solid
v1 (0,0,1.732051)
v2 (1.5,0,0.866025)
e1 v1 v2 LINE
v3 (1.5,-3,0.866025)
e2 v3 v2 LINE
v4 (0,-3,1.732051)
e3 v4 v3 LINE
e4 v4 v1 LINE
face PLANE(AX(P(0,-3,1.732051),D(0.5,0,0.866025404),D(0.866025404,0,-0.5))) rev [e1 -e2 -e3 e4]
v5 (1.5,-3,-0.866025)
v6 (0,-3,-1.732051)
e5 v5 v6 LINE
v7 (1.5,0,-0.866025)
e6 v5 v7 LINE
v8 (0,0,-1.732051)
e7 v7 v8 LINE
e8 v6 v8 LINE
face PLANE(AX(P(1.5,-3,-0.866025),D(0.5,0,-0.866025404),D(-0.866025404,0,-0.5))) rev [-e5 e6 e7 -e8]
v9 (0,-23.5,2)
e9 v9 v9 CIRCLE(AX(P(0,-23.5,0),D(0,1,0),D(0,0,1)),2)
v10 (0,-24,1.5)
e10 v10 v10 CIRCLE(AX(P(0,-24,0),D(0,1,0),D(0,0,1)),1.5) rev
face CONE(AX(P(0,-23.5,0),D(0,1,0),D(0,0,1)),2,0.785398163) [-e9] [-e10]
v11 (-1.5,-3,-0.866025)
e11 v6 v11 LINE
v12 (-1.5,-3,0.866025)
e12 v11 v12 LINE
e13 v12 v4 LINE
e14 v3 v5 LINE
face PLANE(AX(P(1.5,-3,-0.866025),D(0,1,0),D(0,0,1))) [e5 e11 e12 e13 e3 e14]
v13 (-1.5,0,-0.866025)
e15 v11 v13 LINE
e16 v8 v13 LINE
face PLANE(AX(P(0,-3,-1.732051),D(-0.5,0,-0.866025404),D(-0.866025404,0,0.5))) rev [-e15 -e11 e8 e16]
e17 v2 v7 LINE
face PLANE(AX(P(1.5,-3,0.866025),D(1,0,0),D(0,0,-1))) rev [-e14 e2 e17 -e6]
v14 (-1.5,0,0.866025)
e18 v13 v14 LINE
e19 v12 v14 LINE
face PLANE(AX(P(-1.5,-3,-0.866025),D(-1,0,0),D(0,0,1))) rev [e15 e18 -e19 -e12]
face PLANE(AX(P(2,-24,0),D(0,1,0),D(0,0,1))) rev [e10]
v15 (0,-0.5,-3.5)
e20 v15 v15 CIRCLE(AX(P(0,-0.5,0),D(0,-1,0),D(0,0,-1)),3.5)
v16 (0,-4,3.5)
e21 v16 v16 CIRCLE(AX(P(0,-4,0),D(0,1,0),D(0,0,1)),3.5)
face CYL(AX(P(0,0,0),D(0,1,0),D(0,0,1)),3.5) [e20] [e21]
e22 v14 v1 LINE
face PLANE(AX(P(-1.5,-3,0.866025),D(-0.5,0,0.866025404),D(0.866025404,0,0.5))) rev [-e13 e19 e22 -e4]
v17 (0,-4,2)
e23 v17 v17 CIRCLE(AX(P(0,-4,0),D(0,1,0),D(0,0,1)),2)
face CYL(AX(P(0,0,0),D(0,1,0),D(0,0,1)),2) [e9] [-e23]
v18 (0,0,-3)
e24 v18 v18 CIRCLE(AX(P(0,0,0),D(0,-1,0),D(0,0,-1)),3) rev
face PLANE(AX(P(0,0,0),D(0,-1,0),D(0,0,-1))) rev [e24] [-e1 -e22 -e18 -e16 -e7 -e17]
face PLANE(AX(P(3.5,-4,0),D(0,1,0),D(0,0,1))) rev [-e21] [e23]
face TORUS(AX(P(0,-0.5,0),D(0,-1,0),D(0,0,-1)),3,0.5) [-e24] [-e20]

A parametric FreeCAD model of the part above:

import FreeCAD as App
import Part
import Sketcher

V = App.Vector
Q = App.Units.Quantity


def edges_at(feature, points):
    """Names of the edges that pass closest to the given points."""
    edges = feature.Shape.Edges
    near = lambda p: min(range(len(edges)), key=lambda i: edges[i].distToShape(Part.Vertex(*p))[0])
    return sorted({f"Edge{near(p) + 1}" for p in points})


def add_polygon(sketch, points):
    """Adds a closed chain of lines whose ends are joined by coincident constraints."""
    first, n = sketch.GeometryCount, len(points)
    for a, b in zip(points, points[1:] + points[:1]):
        sketch.addGeometry(Part.LineSegment(App.Vector(*a, 0), App.Vector(*b, 0)), False)
    for i in range(n):
        sketch.addConstraint(Sketcher.Constraint("Coincident", first + i, 2, first + (i + 1) % n, 1))

doc = App.newDocument("Part")
body = doc.addObject("PartDesign::Body", "Body")

sketch1 = doc.addObject("Sketcher::SketchObject", "Sketch")
body.addObject(sketch1)
sketch1.AttachmentSupport = (doc.XY_Plane, [""])
sketch1.MapMode = "FlatFace"
add_polygon(sketch1, [(3.5, 0), (0, 0), (0, -24), (2, -24), (2, -4), (3.5, -4)])
sketch1.addConstraint(Sketcher.Constraint("Horizontal", 0))
sketch1.addConstraint(Sketcher.Constraint("Vertical", 1))
sketch1.addConstraint(Sketcher.Constraint("Horizontal", 2))
sketch1.addConstraint(Sketcher.Constraint("Vertical", 3))
sketch1.addConstraint(Sketcher.Constraint("Horizontal", 4))
sketch1.addConstraint(Sketcher.Constraint("Vertical", 5))
sketch1.addConstraint(Sketcher.Constraint("Coincident", 0, 2, -1, 1))
sketch1.addConstraint(Sketcher.Constraint("DistanceX", 2, 1, 2, 2, Q("2 mm")))
sketch1.addConstraint(Sketcher.Constraint("DistanceY", 1, 2, 1, 1, Q("24 mm")))
sketch1.addConstraint(Sketcher.Constraint("DistanceY", 3, 1, 3, 2, Q("20 mm")))
sketch1.addConstraint(Sketcher.Constraint("DistanceX", 0, 2, 0, 1, Q("3.5 mm")))
revolution = doc.addObject("PartDesign::Revolution", "Revolution")
body.addObject(revolution)
revolution.Profile = sketch1
revolution.ReferenceAxis = (sketch1, ["V_Axis"])
revolution.Angle = 360

sketch2 = doc.addObject("Sketcher::SketchObject", "Sketch001")
body.addObject(sketch2)
sketch2.AttachmentSupport = (doc.XZ_Plane, [""])
sketch2.MapMode = "FlatFace"
add_polygon(sketch2, [(1.5, -0.9), (0, -1.7), (-1.5, -0.9), (-1.5, 0.9), (0, 1.7), (1.5, 0.9)])
sketch2.addConstraint(Sketcher.Constraint("Vertical", 2))
sketch2.addConstraint(Sketcher.Constraint("Vertical", 5))
sketch2.addConstraint(Sketcher.Constraint("Symmetric", 0, 2, 3, 2, -1, 1))
sketch2.addConstraint(Sketcher.Constraint("Symmetric", 1, 2, 4, 2, -1, 1))
sketch2.addConstraint(Sketcher.Constraint("PointOnObject", 0, 2, -2))
sketch2.addConstraint(Sketcher.Constraint("Parallel", 0, 3))
sketch2.addConstraint(Sketcher.Constraint("Horizontal", 2, 2, 4, 2))
sketch2.addConstraint(Sketcher.Constraint("Angle", 0, Q("-150 deg")))
sketch2.addConstraint(Sketcher.Constraint("DistanceX", 2, 2, 4, 2, Q("3 mm")))
sketch2.addConstraint(Sketcher.Constraint("DistanceY", 2, 1, 2, 2, Q("1.732051 mm")))
pocket1 = doc.addObject("PartDesign::Pocket", "Pocket")
body.addObject(pocket1)
pocket1.Profile = sketch2
pocket1.Length = 3
pocket1.Reversed = True
doc.recompute()

chamfer = doc.addObject("PartDesign::Chamfer", "Chamfer")
body.addObject(chamfer)
chamfer.Base = (pocket1, edges_at(pocket1, [(0, -24, -2)]))
chamfer.Size = 0.5
doc.recompute()

fillet = doc.addObject("PartDesign::Fillet", "Fillet")
body.addObject(fillet)
fillet.Base = (chamfer, edges_at(chamfer, [(0, 0, -3.5)]))
fillet.Radius = 0.5

doc.recompute()
